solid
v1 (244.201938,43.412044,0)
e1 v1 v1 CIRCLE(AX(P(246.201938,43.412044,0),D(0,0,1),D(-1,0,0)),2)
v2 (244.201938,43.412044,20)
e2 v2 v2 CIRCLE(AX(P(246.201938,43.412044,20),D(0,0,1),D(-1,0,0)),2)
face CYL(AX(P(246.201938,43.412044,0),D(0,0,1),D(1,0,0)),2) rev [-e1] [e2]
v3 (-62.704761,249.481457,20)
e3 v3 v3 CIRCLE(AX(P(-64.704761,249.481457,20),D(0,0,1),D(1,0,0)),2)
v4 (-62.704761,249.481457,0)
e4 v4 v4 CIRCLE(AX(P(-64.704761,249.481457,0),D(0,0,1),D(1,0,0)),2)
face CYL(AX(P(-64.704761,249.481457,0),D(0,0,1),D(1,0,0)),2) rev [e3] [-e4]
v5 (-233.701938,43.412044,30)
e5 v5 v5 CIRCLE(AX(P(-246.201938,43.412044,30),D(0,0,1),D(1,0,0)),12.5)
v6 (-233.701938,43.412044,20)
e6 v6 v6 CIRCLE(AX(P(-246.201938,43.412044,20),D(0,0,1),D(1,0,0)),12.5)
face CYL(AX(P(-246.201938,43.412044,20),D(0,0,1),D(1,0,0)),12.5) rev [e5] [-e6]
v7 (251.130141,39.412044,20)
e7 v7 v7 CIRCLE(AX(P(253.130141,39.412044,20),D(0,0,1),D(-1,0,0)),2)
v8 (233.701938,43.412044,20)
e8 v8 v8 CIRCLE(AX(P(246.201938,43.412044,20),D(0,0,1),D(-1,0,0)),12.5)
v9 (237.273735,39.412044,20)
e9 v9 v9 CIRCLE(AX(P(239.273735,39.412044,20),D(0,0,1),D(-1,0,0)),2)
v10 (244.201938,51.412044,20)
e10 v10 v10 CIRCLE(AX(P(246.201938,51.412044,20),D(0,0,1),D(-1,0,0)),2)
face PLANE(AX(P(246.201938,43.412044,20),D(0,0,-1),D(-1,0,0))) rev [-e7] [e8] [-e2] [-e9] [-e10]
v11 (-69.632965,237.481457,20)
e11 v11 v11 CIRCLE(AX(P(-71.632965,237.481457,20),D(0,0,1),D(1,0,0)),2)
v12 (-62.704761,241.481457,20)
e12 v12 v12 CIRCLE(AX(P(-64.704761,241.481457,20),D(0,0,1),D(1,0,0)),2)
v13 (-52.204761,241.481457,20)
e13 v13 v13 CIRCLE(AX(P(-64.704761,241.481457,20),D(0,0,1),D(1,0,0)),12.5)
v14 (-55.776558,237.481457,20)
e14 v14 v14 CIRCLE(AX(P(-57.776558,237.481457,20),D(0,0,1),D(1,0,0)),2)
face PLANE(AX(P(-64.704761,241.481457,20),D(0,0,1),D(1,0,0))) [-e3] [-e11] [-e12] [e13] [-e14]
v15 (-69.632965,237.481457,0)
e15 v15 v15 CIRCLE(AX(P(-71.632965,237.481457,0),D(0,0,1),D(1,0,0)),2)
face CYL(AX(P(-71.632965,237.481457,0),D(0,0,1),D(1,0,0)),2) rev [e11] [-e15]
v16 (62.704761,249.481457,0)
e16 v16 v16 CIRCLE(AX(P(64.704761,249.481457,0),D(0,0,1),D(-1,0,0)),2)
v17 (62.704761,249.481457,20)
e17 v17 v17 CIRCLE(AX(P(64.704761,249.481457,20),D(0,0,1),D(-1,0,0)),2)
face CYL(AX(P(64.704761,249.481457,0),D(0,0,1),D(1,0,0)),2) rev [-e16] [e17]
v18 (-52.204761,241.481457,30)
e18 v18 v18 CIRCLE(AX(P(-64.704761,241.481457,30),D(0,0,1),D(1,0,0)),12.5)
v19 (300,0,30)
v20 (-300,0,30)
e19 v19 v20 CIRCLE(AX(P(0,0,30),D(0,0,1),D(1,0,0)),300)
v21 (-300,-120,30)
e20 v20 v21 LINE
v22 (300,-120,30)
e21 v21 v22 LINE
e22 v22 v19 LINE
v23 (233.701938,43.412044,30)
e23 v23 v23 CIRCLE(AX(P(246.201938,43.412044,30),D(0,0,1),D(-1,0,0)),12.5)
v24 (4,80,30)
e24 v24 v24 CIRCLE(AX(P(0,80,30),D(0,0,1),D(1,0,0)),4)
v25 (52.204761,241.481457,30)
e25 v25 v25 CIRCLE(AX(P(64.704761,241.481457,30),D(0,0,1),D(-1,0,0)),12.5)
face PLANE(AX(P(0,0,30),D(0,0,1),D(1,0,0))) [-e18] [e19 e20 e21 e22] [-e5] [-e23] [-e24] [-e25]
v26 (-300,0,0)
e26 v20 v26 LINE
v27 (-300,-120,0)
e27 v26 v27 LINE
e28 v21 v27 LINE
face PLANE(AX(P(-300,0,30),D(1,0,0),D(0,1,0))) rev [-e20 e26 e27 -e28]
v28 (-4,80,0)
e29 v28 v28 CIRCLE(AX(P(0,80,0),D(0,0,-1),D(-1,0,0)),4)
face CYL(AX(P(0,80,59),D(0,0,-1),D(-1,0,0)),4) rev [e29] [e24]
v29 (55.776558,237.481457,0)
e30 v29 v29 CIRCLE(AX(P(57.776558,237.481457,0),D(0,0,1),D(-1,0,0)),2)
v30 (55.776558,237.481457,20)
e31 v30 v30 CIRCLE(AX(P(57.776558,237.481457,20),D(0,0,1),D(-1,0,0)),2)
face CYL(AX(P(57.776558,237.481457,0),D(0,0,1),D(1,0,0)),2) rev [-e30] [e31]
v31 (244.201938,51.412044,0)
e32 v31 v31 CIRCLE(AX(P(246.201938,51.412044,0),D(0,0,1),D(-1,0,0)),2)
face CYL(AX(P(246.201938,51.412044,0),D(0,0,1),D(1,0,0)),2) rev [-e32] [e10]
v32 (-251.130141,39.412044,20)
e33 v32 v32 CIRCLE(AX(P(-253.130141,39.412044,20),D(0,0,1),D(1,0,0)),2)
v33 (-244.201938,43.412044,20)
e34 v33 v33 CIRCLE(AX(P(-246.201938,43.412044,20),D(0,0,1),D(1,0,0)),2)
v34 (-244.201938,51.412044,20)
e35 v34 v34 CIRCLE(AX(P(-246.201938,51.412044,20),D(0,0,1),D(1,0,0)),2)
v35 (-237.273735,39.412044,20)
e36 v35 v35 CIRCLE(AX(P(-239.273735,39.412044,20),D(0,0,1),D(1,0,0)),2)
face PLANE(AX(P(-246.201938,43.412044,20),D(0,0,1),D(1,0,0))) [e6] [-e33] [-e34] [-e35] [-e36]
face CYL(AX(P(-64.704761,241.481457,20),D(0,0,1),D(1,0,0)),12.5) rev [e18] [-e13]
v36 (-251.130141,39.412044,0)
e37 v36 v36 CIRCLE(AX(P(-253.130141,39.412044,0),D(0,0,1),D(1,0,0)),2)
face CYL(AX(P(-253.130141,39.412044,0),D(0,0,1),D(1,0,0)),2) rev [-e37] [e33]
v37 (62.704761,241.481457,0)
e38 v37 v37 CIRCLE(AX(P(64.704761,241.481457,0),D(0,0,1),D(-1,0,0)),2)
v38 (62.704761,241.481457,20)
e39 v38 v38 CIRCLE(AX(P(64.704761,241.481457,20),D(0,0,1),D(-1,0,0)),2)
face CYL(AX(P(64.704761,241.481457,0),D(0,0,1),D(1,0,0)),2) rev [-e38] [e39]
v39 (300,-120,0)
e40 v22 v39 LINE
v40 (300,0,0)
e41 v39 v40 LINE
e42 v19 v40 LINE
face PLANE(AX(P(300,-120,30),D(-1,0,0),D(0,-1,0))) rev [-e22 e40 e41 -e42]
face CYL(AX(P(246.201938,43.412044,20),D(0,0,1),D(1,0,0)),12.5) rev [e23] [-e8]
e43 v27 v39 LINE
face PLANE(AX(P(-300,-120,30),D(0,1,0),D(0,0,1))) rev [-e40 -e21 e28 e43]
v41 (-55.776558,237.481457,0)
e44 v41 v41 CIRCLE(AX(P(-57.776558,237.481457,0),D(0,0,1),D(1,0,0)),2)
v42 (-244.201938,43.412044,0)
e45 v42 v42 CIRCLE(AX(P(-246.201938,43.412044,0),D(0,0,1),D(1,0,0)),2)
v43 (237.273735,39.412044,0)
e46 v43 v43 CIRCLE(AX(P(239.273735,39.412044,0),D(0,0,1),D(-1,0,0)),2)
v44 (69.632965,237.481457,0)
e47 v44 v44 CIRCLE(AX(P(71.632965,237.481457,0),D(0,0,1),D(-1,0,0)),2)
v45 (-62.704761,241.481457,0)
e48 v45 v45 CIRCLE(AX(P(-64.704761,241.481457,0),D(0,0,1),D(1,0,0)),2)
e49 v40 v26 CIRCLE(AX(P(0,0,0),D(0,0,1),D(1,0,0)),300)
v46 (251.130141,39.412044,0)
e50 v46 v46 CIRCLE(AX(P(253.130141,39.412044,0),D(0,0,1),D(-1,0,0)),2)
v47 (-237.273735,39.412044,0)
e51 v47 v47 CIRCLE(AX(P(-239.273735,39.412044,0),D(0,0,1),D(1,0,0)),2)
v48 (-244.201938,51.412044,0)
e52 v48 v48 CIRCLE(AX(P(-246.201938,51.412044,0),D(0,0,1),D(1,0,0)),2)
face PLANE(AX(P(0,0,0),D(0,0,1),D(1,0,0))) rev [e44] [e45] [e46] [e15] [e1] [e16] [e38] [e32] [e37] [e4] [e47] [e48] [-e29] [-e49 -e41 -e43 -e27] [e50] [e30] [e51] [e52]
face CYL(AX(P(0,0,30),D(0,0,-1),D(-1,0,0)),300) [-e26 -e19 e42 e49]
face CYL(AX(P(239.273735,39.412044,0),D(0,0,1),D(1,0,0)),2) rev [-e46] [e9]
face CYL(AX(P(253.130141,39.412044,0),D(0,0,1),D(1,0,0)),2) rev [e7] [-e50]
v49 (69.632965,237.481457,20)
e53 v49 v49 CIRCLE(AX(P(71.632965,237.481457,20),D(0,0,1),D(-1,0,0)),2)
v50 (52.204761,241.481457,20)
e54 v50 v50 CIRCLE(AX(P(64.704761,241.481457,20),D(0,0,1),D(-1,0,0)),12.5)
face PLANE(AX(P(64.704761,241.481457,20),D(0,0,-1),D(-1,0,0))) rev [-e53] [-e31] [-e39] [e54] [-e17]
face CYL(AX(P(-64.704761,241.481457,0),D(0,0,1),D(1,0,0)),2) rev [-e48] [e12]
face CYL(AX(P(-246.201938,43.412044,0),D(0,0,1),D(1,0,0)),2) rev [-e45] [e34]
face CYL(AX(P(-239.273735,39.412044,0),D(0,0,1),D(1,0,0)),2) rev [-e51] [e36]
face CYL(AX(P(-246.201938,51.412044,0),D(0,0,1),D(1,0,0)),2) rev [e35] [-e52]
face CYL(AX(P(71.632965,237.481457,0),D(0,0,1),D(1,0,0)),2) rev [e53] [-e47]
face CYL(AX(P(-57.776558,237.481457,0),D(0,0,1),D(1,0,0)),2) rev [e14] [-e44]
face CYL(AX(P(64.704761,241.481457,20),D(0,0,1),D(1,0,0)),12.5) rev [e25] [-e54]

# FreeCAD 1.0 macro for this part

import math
import FreeCAD as App
import Part
import Sketcher

V = App.Vector

doc = App.newDocument("Part")
params = doc.addObject("Spreadsheet::Sheet", "Params")
for row, (alias, value) in enumerate([
    ("sketch1_radius", "300 mm"),
    ("sketch1_height", "120 mm"),
    ("pad1_length", "30 mm"),
    ("sketch2_diameter", "25 mm"),
    ("pocket1_length", "10 mm"),
    ("sketch3_diameter", "4 mm"),
    ("pocket2_length", "20 mm"),
    ("sketch4_diameter", "8 mm"),
    ("pocket3_length", "59 mm"),
], start=1):
    params.set(f"A{row}", alias)
    params.set(f"B{row}", "=" + value)
    params.setAlias(f"B{row}", alias)

body = doc.addObject("PartDesign::Body", "Body")

# Sketch on XY plane
sketch1 = doc.addObject("Sketcher::SketchObject", "Sketch")
body.addObject(sketch1)
sketch1.AttachmentSupport = (doc.XY_Plane, [""])
sketch1.MapMode = "FlatFace"
sketch1.addGeometry([
    Part.LineSegment(V(-300, 0, 0), V(-300, -120, 0)),
    Part.LineSegment(V(-300, -120, 0), V(300, -120, 0)),
    Part.LineSegment(V(300, -120, 0), V(300, 0, 0)),
    Part.ArcOfCircle(Part.Circle(V(0, 0, 0), V(0, 0, 1), 300), math.radians(0), math.radians(180)),
], False)
sketch1.addConstraint([
    Sketcher.Constraint("Coincident", 0, 2, 1, 1),
    Sketcher.Constraint("Coincident", 1, 2, 2, 1),
    Sketcher.Constraint("Tangent", 2, 2, 3, 1),
    Sketcher.Constraint("Tangent", 3, 2, 0, 1),
    Sketcher.Constraint("Vertical", 0),
    Sketcher.Constraint("Horizontal", 1),
    Sketcher.Constraint("Vertical", 2),
    Sketcher.Constraint("Coincident", 3, 3, -1, 1),
    Sketcher.Constraint("Radius", 3, 300.0),
    Sketcher.Constraint("DistanceY", 0, 2, 0, 1, 120.0),
])
sketch1.setExpression("Constraints[8]", "Params.sketch1_radius")
sketch1.setExpression("Constraints[9]", "Params.sketch1_height")
pad1 = doc.addObject("PartDesign::Pad", "Pad")
body.addObject(pad1)
pad1.Profile = sketch1
pad1.setExpression("Length", "Params.pad1_length")

# Sketch on XY plane
sketch2 = doc.addObject("Sketcher::SketchObject", "Sketch001")
body.addObject(sketch2)
sketch2.AttachmentSupport = (doc.XY_Plane, [""])
sketch2.MapMode = "FlatFace"
sketch2.AttachmentOffset = App.Placement(V(0, 0, 30), App.Rotation())
sketch2.addGeometry([
    Part.Circle(V(-246, 43, 0), V(0, 0, 1), 12),
    Part.Circle(V(-65, 241, 0), V(0, 0, 1), 12),
    Part.Circle(V(246, 43, 0), V(0, 0, 1), 12),
    Part.Circle(V(65, 241, 0), V(0, 0, 1), 12),
], False)
sketch2.addConstraint([
    Sketcher.Constraint("Equal", 0, 1),
    Sketcher.Constraint("Equal", 1, 2),
    Sketcher.Constraint("Equal", 2, 3),
    Sketcher.Constraint("Symmetric", 0, 3, 2, 3, -2),
    Sketcher.Constraint("Symmetric", 1, 3, 3, 3, -2),
    Sketcher.Constraint("Diameter", 0, 25.0),
    Sketcher.Constraint("DistanceX", 1, 3, 2, 3, 310.9067),
    Sketcher.Constraint("DistanceX", 0, 3, -1, 1, 246.201938),
    Sketcher.Constraint("DistanceY", -1, 1, 0, 3, 43.412044),
    Sketcher.Constraint("DistanceY", -1, 1, 1, 3, 241.481457),
])
sketch2.setExpression("Constraints[5]", "Params.sketch2_diameter")
pocket1 = doc.addObject("PartDesign::Pocket", "Pocket")
body.addObject(pocket1)
pocket1.Profile = sketch2
pocket1.setExpression("Length", "Params.pocket1_length")

# Sketch on XY plane
sketch3 = doc.addObject("Sketcher::SketchObject", "Sketch002")
body.addObject(sketch3)
sketch3.AttachmentSupport = (doc.XY_Plane, [""])
sketch3.MapMode = "FlatFace"
sketch3.AttachmentOffset = App.Placement(V(0, 0, 20), App.Rotation())
sketch3.addGeometry([
    Part.Circle(V(-246.2, 43.4, 0), V(0, 0, 1), 2),  # 0
    Part.Circle(V(-246.2, 51.4, 0), V(0, 0, 1), 2),  # 1
    Part.Circle(V(-253.1, 39.4, 0), V(0, 0, 1), 2),  # 2
    Part.Circle(V(-239.3, 39.4, 0), V(0, 0, 1), 2),  # 3
    Part.Circle(V(-64.7, 249.5, 0), V(0, 0, 1), 2),  # 4
    Part.Circle(V(-71.6, 237.5, 0), V(0, 0, 1), 2),  # 5
    Part.Circle(V(-57.8, 237.5, 0), V(0, 0, 1), 2),  # 6
    Part.Circle(V(-64.7, 241.5, 0), V(0, 0, 1), 2),  # 7
    Part.Circle(V(64.7, 241.5, 0), V(0, 0, 1), 2),  # 8
    Part.Circle(V(57.8, 237.5, 0), V(0, 0, 1), 2),  # 9
    Part.Circle(V(71.6, 237.5, 0), V(0, 0, 1), 2),  # 10
    Part.Circle(V(64.7, 249.5, 0), V(0, 0, 1), 2),  # 11
    Part.Circle(V(239.3, 39.4, 0), V(0, 0, 1), 2),  # 12
    Part.Circle(V(253.1, 39.4, 0), V(0, 0, 1), 2),  # 13
    Part.Circle(V(246.2, 51.4, 0), V(0, 0, 1), 2),  # 14
    Part.Circle(V(246.2, 43.4, 0), V(0, 0, 1), 2),  # 15
], False)
sketch3.addConstraint([
    Sketcher.Constraint("Equal", 0, 1),
    Sketcher.Constraint("Equal", 1, 2),
    Sketcher.Constraint("Equal", 2, 3),
    Sketcher.Constraint("Equal", 3, 4),
    Sketcher.Constraint("Equal", 4, 5),
    Sketcher.Constraint("Equal", 5, 6),
    Sketcher.Constraint("Equal", 6, 7),
    Sketcher.Constraint("Equal", 7, 8),
    Sketcher.Constraint("Equal", 8, 9),
    Sketcher.Constraint("Equal", 9, 10),
    Sketcher.Constraint("Equal", 10, 11),
    Sketcher.Constraint("Equal", 11, 12),
    Sketcher.Constraint("Equal", 12, 13),
    Sketcher.Constraint("Equal", 13, 14),
    Sketcher.Constraint("Equal", 14, 15),
    Sketcher.Constraint("Symmetric", 7, 3, 8, 3, -2),
    Sketcher.Constraint("Symmetric", 6, 3, 9, 3, -2),
    Sketcher.Constraint("Symmetric", 5, 3, 10, 3, -2),
    Sketcher.Constraint("Symmetric", 4, 3, 11, 3, -2),
    Sketcher.Constraint("Symmetric", 3, 3, 12, 3, -2),
    Sketcher.Constraint("Symmetric", 2, 3, 13, 3, -2),
    Sketcher.Constraint("Symmetric", 1, 3, 14, 3, -2),
    Sketcher.Constraint("Symmetric", 0, 3, 15, 3, -2),
    Sketcher.Constraint("Horizontal", 2, 3, 3, 3),
    Sketcher.Constraint("Horizontal", 5, 3, 6, 3),
    Sketcher.Constraint("Vertical", 0, 3, 1, 3),
    Sketcher.Constraint("Vertical", 4, 3, 7, 3),
    Sketcher.Constraint("Diameter", 0, 4.0),
    Sketcher.Constraint("DistanceY", 0, 3, 1, 3, 8.0),
    Sketcher.Constraint("DistanceY", 2, 3, 0, 3, 4.0),
    Sketcher.Constraint("DistanceY", 5, 3, 4, 3, 12.0),
    Sketcher.Constraint("DistanceY", 5, 3, 7, 3, 4.0),
    Sketcher.Constraint("DistanceX", 1, 3, 8, 3, 310.9067),
    Sketcher.Constraint("DistanceX", 0, 3, -1, 1, 246.201938),
    Sketcher.Constraint("DistanceX", 2, 3, -1, 1, 253.130141),
    Sketcher.Constraint("DistanceX", 6, 3, -1, 1, 57.776558),
    Sketcher.Constraint("DistanceX", 3, 3, 5, 3, 167.640771),
    Sketcher.Constraint("DistanceY", -1, 1, 0, 3, 43.412044),
    Sketcher.Constraint("DistanceX", 3, 3, -1, 1, 239.273735),
    Sketcher.Constraint("DistanceY", -1, 1, 4, 3, 249.481457),
])
sketch3.setExpression("Constraints[27]", "Params.sketch3_diameter")
pocket2 = doc.addObject("PartDesign::Pocket", "Pocket001")
body.addObject(pocket2)
pocket2.Profile = sketch3
pocket2.setExpression("Length", "Params.pocket2_length")

# Sketch on XY plane
sketch4 = doc.addObject("Sketcher::SketchObject", "Sketch003")
body.addObject(sketch4)
sketch4.AttachmentSupport = (doc.XY_Plane, [""])
sketch4.MapMode = "FlatFace"
sketch4.addGeometry(Part.Circle(V(0, 80, 0), V(0, 0, 1), 4), False)
sketch4.addConstraint([
    Sketcher.Constraint("PointOnObject", 0, 3, -2),
    Sketcher.Constraint("Diameter", 0, 8.0),
    Sketcher.Constraint("DistanceY", -1, 1, 0, 3, 80.0),
])
sketch4.setExpression("Constraints[1]", "Params.sketch4_diameter")
pocket3 = doc.addObject("PartDesign::Pocket", "Pocket002")
body.addObject(pocket3)
pocket3.Profile = sketch4
pocket3.setExpression("Length", "Params.pocket3_length")
pocket3.Reversed = True

doc.recompute()
